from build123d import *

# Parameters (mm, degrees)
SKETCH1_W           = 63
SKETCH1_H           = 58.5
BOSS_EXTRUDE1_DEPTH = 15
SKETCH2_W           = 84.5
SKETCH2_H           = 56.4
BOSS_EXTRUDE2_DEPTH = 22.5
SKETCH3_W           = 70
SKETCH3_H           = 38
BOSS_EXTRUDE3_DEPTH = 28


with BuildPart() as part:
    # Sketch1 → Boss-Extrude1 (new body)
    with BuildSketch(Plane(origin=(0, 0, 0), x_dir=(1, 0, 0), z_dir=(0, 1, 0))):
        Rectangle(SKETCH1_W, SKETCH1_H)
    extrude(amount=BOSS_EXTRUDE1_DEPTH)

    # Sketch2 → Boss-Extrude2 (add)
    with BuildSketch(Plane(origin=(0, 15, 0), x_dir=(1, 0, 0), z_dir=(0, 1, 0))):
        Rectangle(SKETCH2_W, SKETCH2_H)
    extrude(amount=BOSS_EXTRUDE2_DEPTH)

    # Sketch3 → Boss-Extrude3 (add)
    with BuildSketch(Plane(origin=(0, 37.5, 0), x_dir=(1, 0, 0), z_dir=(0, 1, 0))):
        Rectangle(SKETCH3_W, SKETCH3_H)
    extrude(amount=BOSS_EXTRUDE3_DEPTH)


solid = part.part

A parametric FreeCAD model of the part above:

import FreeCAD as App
import Part
import Sketcher
from FreeCAD import Vector
Q = App.Units.Quantity


def add_polygon(sketch, points):
    """Adds a closed chain of lines whose ends are joined by coincident constraints."""
    first, n = sketch.GeometryCount, len(points)
    for a, b in zip(points, points[1:] + points[:1]):
        sketch.addGeometry(Part.LineSegment(App.Vector(*a, 0), App.Vector(*b, 0)), False)
    for i in range(n):
        sketch.addConstraint(Sketcher.Constraint("Coincident", first + i, 2, first + (i + 1) % n, 1))

doc = App.newDocument("Part")
body = doc.addObject("PartDesign::Body", "Body")

# Sketch on XZ plane
sketch1 = body.newObject("Sketcher::SketchObject", "Sketch")
sketch1.AttachmentSupport = (doc.getObject("XZ_Plane"), [""])
sketch1.MapMode = "FlatFace"
add_polygon(sketch1, [(-32, -29), (-32, 29), (32, 29), (32, -29)])  # lines 0-3
sketch1.addConstraint(Sketcher.Constraint("Vertical", 0))
sketch1.addConstraint(Sketcher.Constraint("Horizontal", 1))
sketch1.addConstraint(Sketcher.Constraint("Vertical", 2))
sketch1.addConstraint(Sketcher.Constraint("Horizontal", 3))
sketch1.addConstraint(Sketcher.Constraint("Symmetric", 0, 2, 2, 2, -1, 1))
sketch1.addConstraint(Sketcher.Constraint("DistanceX", 1, 1, 1, 2, Q("63 mm")))
sketch1.addConstraint(Sketcher.Constraint("DistanceY", 0, 1, 0, 2, Q("58.5 mm")))
pad1 = body.newObject("PartDesign::Pad", "Pad")
pad1.Profile = sketch1
pad1.Length = 15
pad1.Reversed = True

# Sketch on XZ plane
sketch2 = body.newObject("Sketcher::SketchObject", "Sketch001")
sketch2.AttachmentSupport = (doc.getObject("XZ_Plane"), [""])
sketch2.MapMode = "FlatFace"
sketch2.AttachmentOffset = App.Placement(Vector(0, 0, -15), App.Rotation())
add_polygon(sketch2, [(-42, -28), (-42, 28), (42, 28), (42, -28)])  # lines 0-3
sketch2.addConstraint(Sketcher.Constraint("Vertical", 0))
sketch2.addConstraint(Sketcher.Constraint("Horizontal", 1))
sketch2.addConstraint(Sketcher.Constraint("Vertical", 2))
sketch2.addConstraint(Sketcher.Constraint("Horizontal", 3))
sketch2.addConstraint(Sketcher.Constraint("Symmetric", 0, 2, 2, 2, -1, 1))
sketch2.addConstraint(Sketcher.Constraint("DistanceX", 1, 1, 1, 2, Q("84.5 mm")))
sketch2.addConstraint(Sketcher.Constraint("DistanceY", 0, 1, 0, 2, Q("56.4 mm")))
pad2 = body.newObject("PartDesign::Pad", "Pad001")
pad2.Profile = sketch2
pad2.Length = 22.5
pad2.Reversed = True

# Sketch on XZ plane
sketch3 = body.newObject("Sketcher::SketchObject", "Sketch002")
sketch3.AttachmentSupport = (doc.getObject("XZ_Plane"), [""])
sketch3.MapMode = "FlatFace"
sketch3.AttachmentOffset = App.Placement(Vector(0, 0, -37.5), App.Rotation())
add_polygon(sketch3, [(-35, -19), (-35, 19), (35, 19), (35, -19)])  # lines 0-3
sketch3.addConstraint(Sketcher.Constraint("Vertical", 0))
sketch3.addConstraint(Sketcher.Constraint("Horizontal", 1))
sketch3.addConstraint(Sketcher.Constraint("Vertical", 2))
sketch3.addConstraint(Sketcher.Constraint("Horizontal", 3))
sketch3.addConstraint(Sketcher.Constraint("Symmetric", 0, 2, 2, 2, -1, 1))
sketch3.addConstraint(Sketcher.Constraint("DistanceX", 1, 1, 1, 2, Q("70 mm")))
sketch3.addConstraint(Sketcher.Constraint("DistanceY", 0, 1, 0, 2, Q("38 mm")))
pad3 = body.newObject("PartDesign::Pad", "Pad002")
pad3.Profile = sketch3
pad3.Length = 28
pad3.Reversed = True

doc.recompute()
